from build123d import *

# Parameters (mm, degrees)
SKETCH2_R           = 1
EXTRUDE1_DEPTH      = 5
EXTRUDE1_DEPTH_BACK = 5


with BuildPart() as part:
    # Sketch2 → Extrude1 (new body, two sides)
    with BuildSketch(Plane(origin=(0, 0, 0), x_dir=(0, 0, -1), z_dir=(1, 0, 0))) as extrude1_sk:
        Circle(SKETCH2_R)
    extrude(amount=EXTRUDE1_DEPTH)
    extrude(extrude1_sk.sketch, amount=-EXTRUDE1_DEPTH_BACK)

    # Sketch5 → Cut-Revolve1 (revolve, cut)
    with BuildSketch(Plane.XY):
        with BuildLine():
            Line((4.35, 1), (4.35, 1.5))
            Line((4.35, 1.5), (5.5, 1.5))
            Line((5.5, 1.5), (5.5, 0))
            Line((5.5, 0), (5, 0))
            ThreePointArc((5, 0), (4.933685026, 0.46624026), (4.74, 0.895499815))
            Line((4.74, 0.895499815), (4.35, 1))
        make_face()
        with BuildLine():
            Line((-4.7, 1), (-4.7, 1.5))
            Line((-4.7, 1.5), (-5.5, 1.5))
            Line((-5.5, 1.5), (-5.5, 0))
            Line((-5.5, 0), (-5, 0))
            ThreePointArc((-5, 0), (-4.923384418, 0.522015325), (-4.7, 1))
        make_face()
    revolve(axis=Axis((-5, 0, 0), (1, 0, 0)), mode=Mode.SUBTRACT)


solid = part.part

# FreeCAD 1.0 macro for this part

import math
import FreeCAD as App
import Part
import Sketcher

V = App.Vector
Q = App.Units.Quantity

doc = App.newDocument("Part")
body = doc.addObject("PartDesign::Body", "Body")

# Sketch on YZ plane
sketch1 = body.newObject("Sketcher::SketchObject", "Sketch")
sketch1.AttachmentSupport = (doc.getObject("YZ_Plane"), [""])
sketch1.MapMode = "FlatFace"
sketch1.addGeometry(Part.Circle(V(0, 0, 0), V(0, 0, 1), 1), False)
sketch1.addConstraint([
    Sketcher.Constraint("Coincident", 0, 3, -1, 1),
    Sketcher.Constraint("Diameter", 0, 2.0),
])
pad1 = body.newObject("PartDesign::Pad", "Pad")
pad1.Profile = sketch1
pad1.Type = "TwoLengths"
pad1.Length = 5
pad1.Length2 = 5

# Sketch on XY plane
sketch2 = body.newObject("Sketcher::SketchObject", "Sketch001")
sketch2.AttachmentSupport = (doc.getObject("XY_Plane"), [""])
sketch2.MapMode = "FlatFace"
sketch2.addGeometry([
    Part.LineSegment(V(4.35, 1.5, 0), V(4.35, 1, 0)),  # 0
    Part.LineSegment(V(4.35, 1, 0), V(4.74, 0.9, 0)),  # 1
    Part.ArcOfCircle(Part.Circle(V(3.33, 0, 0), V(0, 0, 1), 1.67), math.radians(0), math.radians(32)),  # 2
    Part.LineSegment(V(5, 0, 0), V(5.5, 0, 0)),  # 3
    Part.LineSegment(V(5.5, 0, 0), V(5.5, 1.5, 0)),  # 4
    Part.LineSegment(V(5.5, 1.5, 0), V(4.35, 1.5, 0)),  # 5
    Part.LineSegment(V(-4.7, 1, 0), V(-4.7, 1.5, 0)),  # 6
    Part.LineSegment(V(-4.7, 1.5, 0), V(-5.5, 1.5, 0)),  # 7
    Part.LineSegment(V(-5.5, 1.5, 0), V(-5.5, 0, 0)),  # 8
    Part.LineSegment(V(-5.5, 0, 0), V(-5, 0, 0)),  # 9
    Part.ArcOfCircle(Part.Circle(V(-3.18, 0, 0), V(0, 0, 1), 1.82), math.radians(147), math.radians(180)),  # 10
], False)
sketch2.addConstraint([
    Sketcher.Constraint("Coincident", 0, 2, 1, 1),
    Sketcher.Constraint("Coincident", 1, 2, 2, 2),
    Sketcher.Constraint("Coincident", 2, 1, 3, 1),
    Sketcher.Constraint("Coincident", 3, 2, 4, 1),
    Sketcher.Constraint("Coincident", 4, 2, 5, 1),
    Sketcher.Constraint("Coincident", 5, 2, 0, 1),
    Sketcher.Constraint("Coincident", 6, 2, 7, 1),
    Sketcher.Constraint("Coincident", 7, 2, 8, 1),
    Sketcher.Constraint("Coincident", 8, 2, 9, 1),
    Sketcher.Constraint("Coincident", 9, 2, 10, 2),
    Sketcher.Constraint("Coincident", 10, 1, 6, 1),
    Sketcher.Constraint("Vertical", 0),
    Sketcher.Constraint("Horizontal", 3),
    Sketcher.Constraint("Vertical", 4),
    Sketcher.Constraint("Horizontal", 5),
    Sketcher.Constraint("Vertical", 6),
    Sketcher.Constraint("Horizontal", 7),
    Sketcher.Constraint("Vertical", 8),
    Sketcher.Constraint("Horizontal", 9),
    Sketcher.Constraint("Symmetric", 3, 2, 8, 2, -1, 1),
    Sketcher.Constraint("Symmetric", 2, 1, 9, 2, -2),
    Sketcher.Constraint("PointOnObject", 2, 3, -1),
    Sketcher.Constraint("PointOnObject", 10, 3, -1),
    Sketcher.Constraint("Horizontal", 5, 2, 6, 2),
    Sketcher.Constraint("Horizontal", 0, 2, 10, 1),
    Sketcher.Constraint("Equal", 9, 0),
    Sketcher.Constraint("Angle", 1, Q("-15 deg")),
    Sketcher.Constraint("DistanceX", 3, 1, 3, 2, 0.5),
    Sketcher.Constraint("DistanceX", 7, 2, 7, 1, 0.8),
    Sketcher.Constraint("DistanceY", 4, 1, 4, 2, 1.5),
    Sketcher.Constraint("DistanceX", -1, 1, 2, 1, 5.0),
    Sketcher.Constraint("DistanceX", 5, 2, 5, 1, 1.15),
    Sketcher.Constraint("DistanceX", -1, 1, 1, 2, 4.74),
])
groove = body.newObject("PartDesign::Groove", "Groove")
groove.Profile = sketch2
groove.ReferenceAxis = (sketch2, ["H_Axis"])
groove.Angle = 360

doc.recompute()
